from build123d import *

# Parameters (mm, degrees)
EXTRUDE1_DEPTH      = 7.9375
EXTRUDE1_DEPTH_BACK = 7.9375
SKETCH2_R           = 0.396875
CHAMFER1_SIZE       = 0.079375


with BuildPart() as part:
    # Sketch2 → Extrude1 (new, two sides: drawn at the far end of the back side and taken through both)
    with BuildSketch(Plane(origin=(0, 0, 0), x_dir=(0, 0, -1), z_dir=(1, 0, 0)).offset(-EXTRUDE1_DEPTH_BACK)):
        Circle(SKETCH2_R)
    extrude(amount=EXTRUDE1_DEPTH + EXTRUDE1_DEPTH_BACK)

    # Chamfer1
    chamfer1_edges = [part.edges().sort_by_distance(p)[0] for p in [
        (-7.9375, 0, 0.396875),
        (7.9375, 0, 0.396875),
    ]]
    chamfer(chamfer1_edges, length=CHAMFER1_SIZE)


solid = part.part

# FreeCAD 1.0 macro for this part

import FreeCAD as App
import Part
import Sketcher
Q = App.Units.Quantity


def edges_at(feature, points):
    """Names of the edges that pass closest to the given points."""
    edges = feature.Shape.Edges
    near = lambda p: min(range(len(edges)), key=lambda i: edges[i].distToShape(Part.Vertex(*p))[0])
    return sorted({f"Edge{near(p) + 1}" for p in points})

doc = App.newDocument("Part")
body = doc.addObject("PartDesign::Body", "Body")

# Sketch on YZ plane
sketch1 = body.newObject("Sketcher::SketchObject", "Sketch")
sketch1.AttachmentSupport = (doc.getObject("YZ_Plane"), [""])
sketch1.MapMode = "FlatFace"
sketch1.addGeometry(Part.Circle(App.Vector(0, 0, 0), App.Vector(0, 0, 1), 0.4), False)
sketch1.addConstraint([
    Sketcher.Constraint("Coincident", 0, 3, -1, 1),
    Sketcher.Constraint("Diameter", 0, Q("0.03125 in")),
])
pad1 = body.newObject("PartDesign::Pad", "Pad")
pad1.Profile = sketch1
pad1.Type = "TwoLengths"
pad1.Length = Q("0.3125 in")
pad1.Length2 = Q("0.3125 in")
doc.recompute()

chamfer = body.newObject("PartDesign::Chamfer", "Chamfer")
chamfer.Base = (pad1, edges_at(pad1, [(-7.938, 0, 0.397), (7.938, 0, 0.397)]))
chamfer.Size = 0.079375

doc.recompute()
